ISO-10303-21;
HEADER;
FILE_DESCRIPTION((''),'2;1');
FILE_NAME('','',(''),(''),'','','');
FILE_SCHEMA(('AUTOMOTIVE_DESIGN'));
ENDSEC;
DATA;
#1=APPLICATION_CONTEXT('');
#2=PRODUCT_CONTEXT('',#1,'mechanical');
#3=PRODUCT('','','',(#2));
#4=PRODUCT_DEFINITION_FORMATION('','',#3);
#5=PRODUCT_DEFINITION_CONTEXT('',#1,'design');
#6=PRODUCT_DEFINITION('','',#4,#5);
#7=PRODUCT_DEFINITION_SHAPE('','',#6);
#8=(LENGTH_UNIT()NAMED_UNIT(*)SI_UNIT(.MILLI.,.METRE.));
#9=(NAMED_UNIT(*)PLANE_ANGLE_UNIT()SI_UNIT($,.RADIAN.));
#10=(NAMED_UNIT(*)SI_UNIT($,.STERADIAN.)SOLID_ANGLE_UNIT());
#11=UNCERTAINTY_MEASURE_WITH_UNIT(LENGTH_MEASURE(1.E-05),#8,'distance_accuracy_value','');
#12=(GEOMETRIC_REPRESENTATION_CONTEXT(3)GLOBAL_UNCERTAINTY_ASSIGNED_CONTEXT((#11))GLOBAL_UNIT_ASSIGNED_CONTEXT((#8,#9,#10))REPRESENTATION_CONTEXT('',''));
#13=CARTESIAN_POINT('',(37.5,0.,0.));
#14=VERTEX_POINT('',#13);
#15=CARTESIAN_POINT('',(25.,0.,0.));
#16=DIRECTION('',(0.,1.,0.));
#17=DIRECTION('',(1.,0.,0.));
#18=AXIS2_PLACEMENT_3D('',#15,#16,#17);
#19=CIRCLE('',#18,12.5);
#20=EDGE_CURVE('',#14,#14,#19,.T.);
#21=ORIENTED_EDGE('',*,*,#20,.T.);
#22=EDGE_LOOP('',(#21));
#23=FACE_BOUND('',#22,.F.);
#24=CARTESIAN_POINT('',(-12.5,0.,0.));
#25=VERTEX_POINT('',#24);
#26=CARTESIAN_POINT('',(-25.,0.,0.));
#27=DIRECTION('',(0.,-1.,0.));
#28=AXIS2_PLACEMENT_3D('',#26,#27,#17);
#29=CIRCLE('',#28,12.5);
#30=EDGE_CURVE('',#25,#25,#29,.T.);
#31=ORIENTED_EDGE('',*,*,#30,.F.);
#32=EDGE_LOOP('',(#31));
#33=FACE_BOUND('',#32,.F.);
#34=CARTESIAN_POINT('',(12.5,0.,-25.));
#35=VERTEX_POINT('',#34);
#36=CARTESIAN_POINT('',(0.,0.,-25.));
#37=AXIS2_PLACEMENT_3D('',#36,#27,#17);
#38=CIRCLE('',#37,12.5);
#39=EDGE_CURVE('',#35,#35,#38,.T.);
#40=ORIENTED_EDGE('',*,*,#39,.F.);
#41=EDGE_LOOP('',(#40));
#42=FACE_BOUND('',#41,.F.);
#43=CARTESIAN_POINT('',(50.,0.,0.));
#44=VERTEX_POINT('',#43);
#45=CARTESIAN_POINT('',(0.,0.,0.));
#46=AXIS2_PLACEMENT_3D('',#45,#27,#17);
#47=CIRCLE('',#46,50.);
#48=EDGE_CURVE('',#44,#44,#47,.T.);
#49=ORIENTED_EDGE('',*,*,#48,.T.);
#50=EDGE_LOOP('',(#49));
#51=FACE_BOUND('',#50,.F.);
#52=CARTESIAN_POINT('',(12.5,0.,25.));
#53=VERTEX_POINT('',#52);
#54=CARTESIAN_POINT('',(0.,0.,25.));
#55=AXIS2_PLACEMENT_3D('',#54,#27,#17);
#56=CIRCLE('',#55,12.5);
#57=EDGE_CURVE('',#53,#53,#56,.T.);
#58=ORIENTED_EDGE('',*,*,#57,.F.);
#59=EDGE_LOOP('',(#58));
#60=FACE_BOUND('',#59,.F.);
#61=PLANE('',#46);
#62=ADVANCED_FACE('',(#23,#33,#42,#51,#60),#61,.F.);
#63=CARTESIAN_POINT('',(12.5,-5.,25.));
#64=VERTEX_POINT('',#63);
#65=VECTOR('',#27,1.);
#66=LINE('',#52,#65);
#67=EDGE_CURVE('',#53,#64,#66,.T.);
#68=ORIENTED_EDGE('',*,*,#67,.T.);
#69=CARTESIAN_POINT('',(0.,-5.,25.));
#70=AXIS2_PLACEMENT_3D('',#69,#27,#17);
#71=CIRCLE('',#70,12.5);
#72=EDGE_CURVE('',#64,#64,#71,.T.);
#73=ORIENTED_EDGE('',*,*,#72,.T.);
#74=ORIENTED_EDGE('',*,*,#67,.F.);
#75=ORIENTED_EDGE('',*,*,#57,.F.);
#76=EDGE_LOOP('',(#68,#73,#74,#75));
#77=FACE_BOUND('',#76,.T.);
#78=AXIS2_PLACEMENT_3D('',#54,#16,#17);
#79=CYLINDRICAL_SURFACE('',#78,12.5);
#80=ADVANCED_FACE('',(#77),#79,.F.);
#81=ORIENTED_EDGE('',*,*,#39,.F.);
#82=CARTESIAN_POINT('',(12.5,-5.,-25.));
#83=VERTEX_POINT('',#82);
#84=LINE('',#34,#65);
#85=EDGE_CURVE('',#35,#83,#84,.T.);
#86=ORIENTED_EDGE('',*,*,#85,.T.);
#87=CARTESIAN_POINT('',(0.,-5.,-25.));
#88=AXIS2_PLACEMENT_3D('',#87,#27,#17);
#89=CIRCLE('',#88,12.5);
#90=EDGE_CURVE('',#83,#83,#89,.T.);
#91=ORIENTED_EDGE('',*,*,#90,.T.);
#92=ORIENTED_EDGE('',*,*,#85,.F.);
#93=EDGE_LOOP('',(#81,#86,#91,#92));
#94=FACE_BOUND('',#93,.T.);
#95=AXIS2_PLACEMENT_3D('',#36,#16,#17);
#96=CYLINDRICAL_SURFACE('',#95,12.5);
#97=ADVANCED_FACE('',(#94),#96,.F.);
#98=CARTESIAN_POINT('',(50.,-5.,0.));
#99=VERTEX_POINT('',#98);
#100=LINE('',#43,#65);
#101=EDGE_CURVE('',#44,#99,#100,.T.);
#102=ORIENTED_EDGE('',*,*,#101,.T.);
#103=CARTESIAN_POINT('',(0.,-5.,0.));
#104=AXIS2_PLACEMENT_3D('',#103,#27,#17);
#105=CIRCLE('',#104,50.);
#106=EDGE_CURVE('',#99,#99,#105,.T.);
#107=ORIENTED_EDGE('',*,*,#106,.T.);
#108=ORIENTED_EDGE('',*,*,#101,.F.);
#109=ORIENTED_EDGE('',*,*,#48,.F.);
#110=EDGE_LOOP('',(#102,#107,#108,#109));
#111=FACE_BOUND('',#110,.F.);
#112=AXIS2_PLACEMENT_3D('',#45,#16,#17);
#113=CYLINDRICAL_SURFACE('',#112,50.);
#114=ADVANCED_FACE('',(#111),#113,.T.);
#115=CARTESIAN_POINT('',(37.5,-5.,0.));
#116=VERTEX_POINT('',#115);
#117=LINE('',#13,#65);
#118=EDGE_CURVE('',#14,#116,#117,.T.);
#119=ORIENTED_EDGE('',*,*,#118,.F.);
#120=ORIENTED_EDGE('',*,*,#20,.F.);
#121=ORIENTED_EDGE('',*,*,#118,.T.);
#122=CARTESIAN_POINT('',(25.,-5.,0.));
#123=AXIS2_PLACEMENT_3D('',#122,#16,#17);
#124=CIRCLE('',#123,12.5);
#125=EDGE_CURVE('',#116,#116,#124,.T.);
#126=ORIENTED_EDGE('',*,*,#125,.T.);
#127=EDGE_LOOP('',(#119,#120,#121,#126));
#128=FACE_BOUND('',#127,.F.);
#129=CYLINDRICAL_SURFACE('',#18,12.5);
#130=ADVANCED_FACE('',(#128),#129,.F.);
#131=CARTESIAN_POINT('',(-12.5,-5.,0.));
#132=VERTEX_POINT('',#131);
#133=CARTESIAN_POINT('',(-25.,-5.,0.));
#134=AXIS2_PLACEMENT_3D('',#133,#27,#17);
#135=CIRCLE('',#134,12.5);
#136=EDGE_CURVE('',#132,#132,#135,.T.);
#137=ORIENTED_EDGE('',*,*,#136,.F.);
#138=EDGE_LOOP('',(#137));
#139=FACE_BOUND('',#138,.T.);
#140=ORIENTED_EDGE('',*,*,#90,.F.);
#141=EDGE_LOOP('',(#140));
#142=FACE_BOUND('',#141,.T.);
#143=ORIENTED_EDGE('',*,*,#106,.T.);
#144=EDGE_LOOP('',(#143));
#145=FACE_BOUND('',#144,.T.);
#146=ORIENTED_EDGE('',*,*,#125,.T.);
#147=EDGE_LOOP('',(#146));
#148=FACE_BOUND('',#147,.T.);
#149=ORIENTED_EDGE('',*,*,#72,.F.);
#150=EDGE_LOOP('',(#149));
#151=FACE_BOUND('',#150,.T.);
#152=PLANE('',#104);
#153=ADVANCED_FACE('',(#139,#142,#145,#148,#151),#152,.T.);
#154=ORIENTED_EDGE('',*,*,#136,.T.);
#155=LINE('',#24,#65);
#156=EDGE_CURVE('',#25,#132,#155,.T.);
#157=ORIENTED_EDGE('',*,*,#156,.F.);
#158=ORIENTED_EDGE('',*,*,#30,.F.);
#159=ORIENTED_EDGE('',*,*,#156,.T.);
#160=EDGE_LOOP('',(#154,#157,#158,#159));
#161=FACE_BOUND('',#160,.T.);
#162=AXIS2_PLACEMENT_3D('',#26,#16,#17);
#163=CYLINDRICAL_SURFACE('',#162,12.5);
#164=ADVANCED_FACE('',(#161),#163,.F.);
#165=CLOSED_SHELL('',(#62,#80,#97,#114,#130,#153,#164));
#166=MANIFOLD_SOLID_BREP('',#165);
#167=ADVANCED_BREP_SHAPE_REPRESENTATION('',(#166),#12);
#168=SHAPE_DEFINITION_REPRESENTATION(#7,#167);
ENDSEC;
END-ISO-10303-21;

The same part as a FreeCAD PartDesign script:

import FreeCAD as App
import Part
import Sketcher
from FreeCAD import Vector

doc = App.newDocument("Part")
params = doc.addObject("Spreadsheet::Sheet", "Params")
for row, (alias, value) in enumerate([
    ("sketch1_diameter", "100 mm"),
    ("sketch1_diameter2", "25 mm"),
    ("pad1_length", "5 mm"),
], start=1):
    params.set(f"A{row}", alias)
    params.set(f"B{row}", "=" + value)
    params.setAlias(f"B{row}", alias)

body = doc.addObject("PartDesign::Body", "Body")

# Sketch on XZ plane
sketch1 = body.newObject("Sketcher::SketchObject", "Sketch")
sketch1.AttachmentSupport = (doc.getObject("XZ_Plane"), [""])
sketch1.MapMode = "FlatFace"
sketch1.addGeometry(Part.Circle(Vector(0, 0, 0), Vector(0, 0, 1), 50), False)
sketch1.addGeometry(Part.Circle(Vector(0, -25, 0), Vector(0, 0, 1), 12), False)
sketch1.addGeometry(Part.Circle(Vector(-25, 0, 0), Vector(0, 0, 1), 12), False)
sketch1.addGeometry(Part.Circle(Vector(25, 0, 0), Vector(0, 0, 1), 12), False)
sketch1.addGeometry(Part.Circle(Vector(0, 25, 0), Vector(0, 0, 1), 12), False)
sketch1.addConstraint(Sketcher.Constraint("Coincident", 0, 3, -1, 1))
sketch1.addConstraint(Sketcher.Constraint("Equal", 1, 2))
sketch1.addConstraint(Sketcher.Constraint("Equal", 2, 3))
sketch1.addConstraint(Sketcher.Constraint("Equal", 3, 4))
sketch1.addConstraint(Sketcher.Constraint("Symmetric", 2, 3, 3, 3, -1, 1))
sketch1.addConstraint(Sketcher.Constraint("Symmetric", 1, 3, 4, 3, -1, 1))
sketch1.addConstraint(Sketcher.Constraint("PointOnObject", 1, 3, -2))
sketch1.addConstraint(Sketcher.Constraint("PointOnObject", 2, 3, -1))
sketch1.addConstraint(Sketcher.Constraint("Diameter", 0, 100.0))
sketch1.addConstraint(Sketcher.Constraint("Diameter", 1, 25.0))
sketch1.addConstraint(Sketcher.Constraint("DistanceY", 1, 3, -1, 1, 25.0))
sketch1.addConstraint(Sketcher.Constraint("DistanceX", 2, 3, -1, 1, 25.0))
sketch1.setExpression("Constraints[8]", "Params.sketch1_diameter")
sketch1.setExpression("Constraints[9]", "Params.sketch1_diameter2")
pad1 = body.newObject("PartDesign::Pad", "Pad")
pad1.Profile = sketch1
pad1.setExpression("Length", "Params.pad1_length")

doc.recompute()
